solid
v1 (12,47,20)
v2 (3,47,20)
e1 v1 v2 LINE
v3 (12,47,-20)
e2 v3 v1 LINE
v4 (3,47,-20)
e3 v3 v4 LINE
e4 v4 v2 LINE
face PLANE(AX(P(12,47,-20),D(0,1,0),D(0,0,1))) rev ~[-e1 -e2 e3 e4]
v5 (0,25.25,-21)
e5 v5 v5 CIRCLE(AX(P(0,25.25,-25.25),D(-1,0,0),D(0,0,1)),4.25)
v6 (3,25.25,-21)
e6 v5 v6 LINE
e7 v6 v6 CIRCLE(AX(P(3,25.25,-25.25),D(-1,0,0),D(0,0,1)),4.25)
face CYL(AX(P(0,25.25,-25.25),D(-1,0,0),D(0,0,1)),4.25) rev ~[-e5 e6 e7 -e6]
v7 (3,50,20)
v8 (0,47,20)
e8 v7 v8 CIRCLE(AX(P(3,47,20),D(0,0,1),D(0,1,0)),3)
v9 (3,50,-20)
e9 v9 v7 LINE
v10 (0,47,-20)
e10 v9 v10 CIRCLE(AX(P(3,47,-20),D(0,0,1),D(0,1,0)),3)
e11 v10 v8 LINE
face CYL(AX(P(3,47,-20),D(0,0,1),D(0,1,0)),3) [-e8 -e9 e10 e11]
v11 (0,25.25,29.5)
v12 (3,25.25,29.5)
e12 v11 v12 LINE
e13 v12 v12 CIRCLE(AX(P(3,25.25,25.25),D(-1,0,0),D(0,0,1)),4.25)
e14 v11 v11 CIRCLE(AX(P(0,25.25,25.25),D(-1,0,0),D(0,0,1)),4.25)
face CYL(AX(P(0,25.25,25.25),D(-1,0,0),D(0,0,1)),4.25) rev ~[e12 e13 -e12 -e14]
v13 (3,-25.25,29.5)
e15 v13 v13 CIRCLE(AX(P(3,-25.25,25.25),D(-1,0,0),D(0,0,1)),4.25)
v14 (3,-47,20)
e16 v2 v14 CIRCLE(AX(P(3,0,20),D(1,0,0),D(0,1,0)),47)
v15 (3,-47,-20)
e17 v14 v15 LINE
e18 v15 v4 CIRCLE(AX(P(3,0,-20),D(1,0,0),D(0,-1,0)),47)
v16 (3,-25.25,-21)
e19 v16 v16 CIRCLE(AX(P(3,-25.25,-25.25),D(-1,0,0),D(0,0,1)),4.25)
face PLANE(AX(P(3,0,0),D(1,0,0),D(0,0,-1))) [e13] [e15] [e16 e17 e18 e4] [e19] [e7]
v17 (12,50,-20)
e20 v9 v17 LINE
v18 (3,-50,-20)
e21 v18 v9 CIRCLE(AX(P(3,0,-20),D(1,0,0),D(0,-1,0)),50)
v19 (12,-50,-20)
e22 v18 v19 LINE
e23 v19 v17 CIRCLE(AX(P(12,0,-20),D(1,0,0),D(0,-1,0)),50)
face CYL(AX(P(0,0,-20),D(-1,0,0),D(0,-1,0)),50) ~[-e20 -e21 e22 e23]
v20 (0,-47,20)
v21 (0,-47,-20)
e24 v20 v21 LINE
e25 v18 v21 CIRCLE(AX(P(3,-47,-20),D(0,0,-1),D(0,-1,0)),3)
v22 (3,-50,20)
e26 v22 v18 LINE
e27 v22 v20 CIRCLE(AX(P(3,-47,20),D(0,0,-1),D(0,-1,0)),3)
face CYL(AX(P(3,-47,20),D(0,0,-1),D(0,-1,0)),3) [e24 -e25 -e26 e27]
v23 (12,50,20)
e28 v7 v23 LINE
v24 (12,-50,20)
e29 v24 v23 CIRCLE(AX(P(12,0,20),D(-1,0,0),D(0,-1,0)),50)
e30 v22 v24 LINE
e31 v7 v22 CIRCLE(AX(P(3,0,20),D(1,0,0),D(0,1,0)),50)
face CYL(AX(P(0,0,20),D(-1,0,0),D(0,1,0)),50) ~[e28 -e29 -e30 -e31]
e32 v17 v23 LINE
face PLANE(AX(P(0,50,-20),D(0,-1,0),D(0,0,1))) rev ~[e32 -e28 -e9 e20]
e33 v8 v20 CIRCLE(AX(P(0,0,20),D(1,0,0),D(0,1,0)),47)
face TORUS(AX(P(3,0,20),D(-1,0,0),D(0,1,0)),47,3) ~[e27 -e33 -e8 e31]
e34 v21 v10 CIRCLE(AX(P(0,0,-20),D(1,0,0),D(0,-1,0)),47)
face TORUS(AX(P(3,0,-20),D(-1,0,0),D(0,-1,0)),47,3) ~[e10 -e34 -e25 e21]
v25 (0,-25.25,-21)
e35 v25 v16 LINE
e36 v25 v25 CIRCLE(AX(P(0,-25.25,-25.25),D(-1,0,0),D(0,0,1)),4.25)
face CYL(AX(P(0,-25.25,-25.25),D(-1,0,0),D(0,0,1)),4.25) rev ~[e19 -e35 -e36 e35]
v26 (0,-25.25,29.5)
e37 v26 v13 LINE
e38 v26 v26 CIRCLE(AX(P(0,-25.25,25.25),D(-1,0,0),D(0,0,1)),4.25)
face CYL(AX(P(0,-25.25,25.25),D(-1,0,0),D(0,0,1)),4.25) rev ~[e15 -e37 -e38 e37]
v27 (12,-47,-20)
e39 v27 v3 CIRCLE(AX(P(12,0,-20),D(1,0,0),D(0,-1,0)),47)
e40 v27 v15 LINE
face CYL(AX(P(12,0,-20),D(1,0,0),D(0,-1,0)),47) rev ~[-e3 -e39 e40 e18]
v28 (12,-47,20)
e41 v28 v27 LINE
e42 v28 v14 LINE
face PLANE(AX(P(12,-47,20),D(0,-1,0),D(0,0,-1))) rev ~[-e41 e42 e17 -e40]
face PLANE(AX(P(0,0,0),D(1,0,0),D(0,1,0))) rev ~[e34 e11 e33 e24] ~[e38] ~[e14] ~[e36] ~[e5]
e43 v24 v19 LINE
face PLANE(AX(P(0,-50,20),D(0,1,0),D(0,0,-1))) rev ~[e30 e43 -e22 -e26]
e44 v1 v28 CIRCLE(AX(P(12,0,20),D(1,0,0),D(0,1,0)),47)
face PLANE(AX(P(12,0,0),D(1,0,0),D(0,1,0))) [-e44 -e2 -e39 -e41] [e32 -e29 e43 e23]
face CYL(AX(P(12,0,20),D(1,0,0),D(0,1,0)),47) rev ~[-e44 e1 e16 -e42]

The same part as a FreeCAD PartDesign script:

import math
import FreeCAD as App
import Part
import Sketcher
Q = App.Units.Quantity


def edges_at(feature, points):
    """Names of the edges that pass closest to the given points."""
    edges = feature.Shape.Edges
    near = lambda p: min(range(len(edges)), key=lambda i: edges[i].distToShape(Part.Vertex(*p))[0])
    return sorted({f"Edge{near(p) + 1}" for p in points})

doc = App.newDocument("Part")
params = doc.addObject("Spreadsheet::Sheet", "Params")
for row, (alias, value) in enumerate([
    ("sketch1_radius", "50 mm"),
    ("sketch1_height", "40 mm"),
    ("pad1_length", "12 mm"),
    ("sketch2_radius", "47 mm"),
    ("sketch2_height", "40 mm"),
    ("pocket1_length", "9 mm"),
    ("sketch3_diameter", "8.5 mm"),
    ("fillet_radius", "3 mm"),
], start=1):
    params.set(f"A{row}", alias)
    params.set(f"B{row}", "=" + value)
    params.setAlias(f"B{row}", alias)

body = doc.addObject("PartDesign::Body", "Body")

# Sketch on YZ plane
sketch1 = doc.addObject("Sketcher::SketchObject", "Sketch")
body.addObject(sketch1)
sketch1.AttachmentSupport = (doc.YZ_Plane, [""])
sketch1.MapMode = "FlatFace"
sketch1.addGeometry([
    Part.ArcOfCircle(Part.Circle(App.Vector(0, 20, 0), App.Vector(0, 0, 1), 50), math.radians(0), math.radians(180)),
    Part.LineSegment(App.Vector(-50, 20, 0), App.Vector(-50, -20, 0)),
    Part.ArcOfCircle(Part.Circle(App.Vector(0, -20, 0), App.Vector(0, 0, 1), 50), math.radians(180), math.radians(360)),
    Part.LineSegment(App.Vector(50, -20, 0), App.Vector(50, 20, 0)),
], False)
sketch1.addConstraint([
    Sketcher.Constraint("Tangent", 0, 2, 1, 1),
    Sketcher.Constraint("Tangent", 1, 2, 2, 1),
    Sketcher.Constraint("Tangent", 2, 2, 3, 1),
    Sketcher.Constraint("Tangent", 3, 2, 0, 1),
    Sketcher.Constraint("Vertical", 1),
    Sketcher.Constraint("Vertical", 3),
    Sketcher.Constraint("Symmetric", 0, 3, 2, 3, -1, 1),
    Sketcher.Constraint("Radius", 0, Q("50 mm")),
    Sketcher.Constraint("DistanceY", 1, 2, 1, 1, Q("40 mm")),
])
sketch1.setExpression("Constraints[7]", "Params.sketch1_radius")
sketch1.setExpression("Constraints[8]", "Params.sketch1_height")
pad1 = doc.addObject("PartDesign::Pad", "Pad")
body.addObject(pad1)
pad1.Profile = sketch1
pad1.setExpression("Length", "Params.pad1_length")

# Sketch on YZ plane
sketch2 = doc.addObject("Sketcher::SketchObject", "Sketch001")
body.addObject(sketch2)
sketch2.AttachmentSupport = (doc.YZ_Plane, [""])
sketch2.MapMode = "FlatFace"
sketch2.AttachmentOffset = App.Placement(App.Vector(0, 0, 12), App.Rotation())
sketch2.addGeometry([
    Part.LineSegment(App.Vector(47, -20, 0), App.Vector(47, 20, 0)),
    Part.ArcOfCircle(Part.Circle(App.Vector(0, 20, 0), App.Vector(0, 0, 1), 47), math.radians(0), math.radians(180)),
    Part.LineSegment(App.Vector(-47, 20, 0), App.Vector(-47, -20, 0)),
    Part.ArcOfCircle(Part.Circle(App.Vector(0, -20, 0), App.Vector(0, 0, 1), 47), math.radians(180), math.radians(360)),
], False)
sketch2.addConstraint([
    Sketcher.Constraint("Tangent", 0, 2, 1, 1),
    Sketcher.Constraint("Tangent", 1, 2, 2, 1),
    Sketcher.Constraint("Tangent", 2, 2, 3, 1),
    Sketcher.Constraint("Tangent", 3, 2, 0, 1),
    Sketcher.Constraint("Vertical", 0),
    Sketcher.Constraint("Vertical", 2),
    Sketcher.Constraint("Symmetric", 1, 3, 3, 3, -1, 1),
    Sketcher.Constraint("Radius", 1, Q("47 mm")),
    Sketcher.Constraint("DistanceY", 0, 1, 0, 2, Q("40 mm")),
])
sketch2.setExpression("Constraints[7]", "Params.sketch2_radius")
sketch2.setExpression("Constraints[8]", "Params.sketch2_height")
pocket1 = doc.addObject("PartDesign::Pocket", "Pocket")
body.addObject(pocket1)
pocket1.Profile = sketch2
pocket1.setExpression("Length", "Params.pocket1_length")

# Sketch on YZ plane
sketch3 = doc.addObject("Sketcher::SketchObject", "Sketch002")
body.addObject(sketch3)
sketch3.AttachmentSupport = (doc.YZ_Plane, [""])
sketch3.MapMode = "FlatFace"
sketch3.addGeometry([
    Part.Circle(App.Vector(-25.2, 25.2, 0), App.Vector(0, 0, 1), 4.2),
    Part.Circle(App.Vector(25.2, 25.2, 0), App.Vector(0, 0, 1), 4.2),
    Part.Circle(App.Vector(25.2, -25.2, 0), App.Vector(0, 0, 1), 4.2),
    Part.Circle(App.Vector(-25.2, -25.2, 0), App.Vector(0, 0, 1), 4.2),
], False)
sketch3.addConstraint([
    Sketcher.Constraint("Equal", 0, 1),
    Sketcher.Constraint("Equal", 1, 2),
    Sketcher.Constraint("Equal", 2, 3),
    Sketcher.Constraint("Symmetric", 0, 3, 2, 3, -1, 1),
    Sketcher.Constraint("Symmetric", 1, 3, 3, 3, -1, 1),
    Sketcher.Constraint("Symmetric", 0, 3, 1, 3, -2),
    Sketcher.Constraint("Diameter", 0, Q("8.5 mm")),
    Sketcher.Constraint("DistanceX", 0, 3, 1, 3, Q("50.5 mm")),
    Sketcher.Constraint("DistanceY", 2, 3, 1, 3, Q("50.5 mm")),
])
sketch3.setExpression("Constraints[6]", "Params.sketch3_diameter")
pocket2 = doc.addObject("PartDesign::Pocket", "Pocket001")
body.addObject(pocket2)
pocket2.Profile = sketch3
pocket2.Type = "ThroughAll"
pocket2.Reversed = True
doc.recompute()

fillet = doc.addObject("PartDesign::Fillet", "Fillet")
body.addObject(fillet)
fillet.Base = (pocket2, edges_at(pocket2, [
    (0, -50, 0),
    (0, 0, -70),
    (0, 50, 0),
    (0, 0, 70),
]))
fillet.setExpression("Radius", "Params.fillet_radius")

doc.recompute()
